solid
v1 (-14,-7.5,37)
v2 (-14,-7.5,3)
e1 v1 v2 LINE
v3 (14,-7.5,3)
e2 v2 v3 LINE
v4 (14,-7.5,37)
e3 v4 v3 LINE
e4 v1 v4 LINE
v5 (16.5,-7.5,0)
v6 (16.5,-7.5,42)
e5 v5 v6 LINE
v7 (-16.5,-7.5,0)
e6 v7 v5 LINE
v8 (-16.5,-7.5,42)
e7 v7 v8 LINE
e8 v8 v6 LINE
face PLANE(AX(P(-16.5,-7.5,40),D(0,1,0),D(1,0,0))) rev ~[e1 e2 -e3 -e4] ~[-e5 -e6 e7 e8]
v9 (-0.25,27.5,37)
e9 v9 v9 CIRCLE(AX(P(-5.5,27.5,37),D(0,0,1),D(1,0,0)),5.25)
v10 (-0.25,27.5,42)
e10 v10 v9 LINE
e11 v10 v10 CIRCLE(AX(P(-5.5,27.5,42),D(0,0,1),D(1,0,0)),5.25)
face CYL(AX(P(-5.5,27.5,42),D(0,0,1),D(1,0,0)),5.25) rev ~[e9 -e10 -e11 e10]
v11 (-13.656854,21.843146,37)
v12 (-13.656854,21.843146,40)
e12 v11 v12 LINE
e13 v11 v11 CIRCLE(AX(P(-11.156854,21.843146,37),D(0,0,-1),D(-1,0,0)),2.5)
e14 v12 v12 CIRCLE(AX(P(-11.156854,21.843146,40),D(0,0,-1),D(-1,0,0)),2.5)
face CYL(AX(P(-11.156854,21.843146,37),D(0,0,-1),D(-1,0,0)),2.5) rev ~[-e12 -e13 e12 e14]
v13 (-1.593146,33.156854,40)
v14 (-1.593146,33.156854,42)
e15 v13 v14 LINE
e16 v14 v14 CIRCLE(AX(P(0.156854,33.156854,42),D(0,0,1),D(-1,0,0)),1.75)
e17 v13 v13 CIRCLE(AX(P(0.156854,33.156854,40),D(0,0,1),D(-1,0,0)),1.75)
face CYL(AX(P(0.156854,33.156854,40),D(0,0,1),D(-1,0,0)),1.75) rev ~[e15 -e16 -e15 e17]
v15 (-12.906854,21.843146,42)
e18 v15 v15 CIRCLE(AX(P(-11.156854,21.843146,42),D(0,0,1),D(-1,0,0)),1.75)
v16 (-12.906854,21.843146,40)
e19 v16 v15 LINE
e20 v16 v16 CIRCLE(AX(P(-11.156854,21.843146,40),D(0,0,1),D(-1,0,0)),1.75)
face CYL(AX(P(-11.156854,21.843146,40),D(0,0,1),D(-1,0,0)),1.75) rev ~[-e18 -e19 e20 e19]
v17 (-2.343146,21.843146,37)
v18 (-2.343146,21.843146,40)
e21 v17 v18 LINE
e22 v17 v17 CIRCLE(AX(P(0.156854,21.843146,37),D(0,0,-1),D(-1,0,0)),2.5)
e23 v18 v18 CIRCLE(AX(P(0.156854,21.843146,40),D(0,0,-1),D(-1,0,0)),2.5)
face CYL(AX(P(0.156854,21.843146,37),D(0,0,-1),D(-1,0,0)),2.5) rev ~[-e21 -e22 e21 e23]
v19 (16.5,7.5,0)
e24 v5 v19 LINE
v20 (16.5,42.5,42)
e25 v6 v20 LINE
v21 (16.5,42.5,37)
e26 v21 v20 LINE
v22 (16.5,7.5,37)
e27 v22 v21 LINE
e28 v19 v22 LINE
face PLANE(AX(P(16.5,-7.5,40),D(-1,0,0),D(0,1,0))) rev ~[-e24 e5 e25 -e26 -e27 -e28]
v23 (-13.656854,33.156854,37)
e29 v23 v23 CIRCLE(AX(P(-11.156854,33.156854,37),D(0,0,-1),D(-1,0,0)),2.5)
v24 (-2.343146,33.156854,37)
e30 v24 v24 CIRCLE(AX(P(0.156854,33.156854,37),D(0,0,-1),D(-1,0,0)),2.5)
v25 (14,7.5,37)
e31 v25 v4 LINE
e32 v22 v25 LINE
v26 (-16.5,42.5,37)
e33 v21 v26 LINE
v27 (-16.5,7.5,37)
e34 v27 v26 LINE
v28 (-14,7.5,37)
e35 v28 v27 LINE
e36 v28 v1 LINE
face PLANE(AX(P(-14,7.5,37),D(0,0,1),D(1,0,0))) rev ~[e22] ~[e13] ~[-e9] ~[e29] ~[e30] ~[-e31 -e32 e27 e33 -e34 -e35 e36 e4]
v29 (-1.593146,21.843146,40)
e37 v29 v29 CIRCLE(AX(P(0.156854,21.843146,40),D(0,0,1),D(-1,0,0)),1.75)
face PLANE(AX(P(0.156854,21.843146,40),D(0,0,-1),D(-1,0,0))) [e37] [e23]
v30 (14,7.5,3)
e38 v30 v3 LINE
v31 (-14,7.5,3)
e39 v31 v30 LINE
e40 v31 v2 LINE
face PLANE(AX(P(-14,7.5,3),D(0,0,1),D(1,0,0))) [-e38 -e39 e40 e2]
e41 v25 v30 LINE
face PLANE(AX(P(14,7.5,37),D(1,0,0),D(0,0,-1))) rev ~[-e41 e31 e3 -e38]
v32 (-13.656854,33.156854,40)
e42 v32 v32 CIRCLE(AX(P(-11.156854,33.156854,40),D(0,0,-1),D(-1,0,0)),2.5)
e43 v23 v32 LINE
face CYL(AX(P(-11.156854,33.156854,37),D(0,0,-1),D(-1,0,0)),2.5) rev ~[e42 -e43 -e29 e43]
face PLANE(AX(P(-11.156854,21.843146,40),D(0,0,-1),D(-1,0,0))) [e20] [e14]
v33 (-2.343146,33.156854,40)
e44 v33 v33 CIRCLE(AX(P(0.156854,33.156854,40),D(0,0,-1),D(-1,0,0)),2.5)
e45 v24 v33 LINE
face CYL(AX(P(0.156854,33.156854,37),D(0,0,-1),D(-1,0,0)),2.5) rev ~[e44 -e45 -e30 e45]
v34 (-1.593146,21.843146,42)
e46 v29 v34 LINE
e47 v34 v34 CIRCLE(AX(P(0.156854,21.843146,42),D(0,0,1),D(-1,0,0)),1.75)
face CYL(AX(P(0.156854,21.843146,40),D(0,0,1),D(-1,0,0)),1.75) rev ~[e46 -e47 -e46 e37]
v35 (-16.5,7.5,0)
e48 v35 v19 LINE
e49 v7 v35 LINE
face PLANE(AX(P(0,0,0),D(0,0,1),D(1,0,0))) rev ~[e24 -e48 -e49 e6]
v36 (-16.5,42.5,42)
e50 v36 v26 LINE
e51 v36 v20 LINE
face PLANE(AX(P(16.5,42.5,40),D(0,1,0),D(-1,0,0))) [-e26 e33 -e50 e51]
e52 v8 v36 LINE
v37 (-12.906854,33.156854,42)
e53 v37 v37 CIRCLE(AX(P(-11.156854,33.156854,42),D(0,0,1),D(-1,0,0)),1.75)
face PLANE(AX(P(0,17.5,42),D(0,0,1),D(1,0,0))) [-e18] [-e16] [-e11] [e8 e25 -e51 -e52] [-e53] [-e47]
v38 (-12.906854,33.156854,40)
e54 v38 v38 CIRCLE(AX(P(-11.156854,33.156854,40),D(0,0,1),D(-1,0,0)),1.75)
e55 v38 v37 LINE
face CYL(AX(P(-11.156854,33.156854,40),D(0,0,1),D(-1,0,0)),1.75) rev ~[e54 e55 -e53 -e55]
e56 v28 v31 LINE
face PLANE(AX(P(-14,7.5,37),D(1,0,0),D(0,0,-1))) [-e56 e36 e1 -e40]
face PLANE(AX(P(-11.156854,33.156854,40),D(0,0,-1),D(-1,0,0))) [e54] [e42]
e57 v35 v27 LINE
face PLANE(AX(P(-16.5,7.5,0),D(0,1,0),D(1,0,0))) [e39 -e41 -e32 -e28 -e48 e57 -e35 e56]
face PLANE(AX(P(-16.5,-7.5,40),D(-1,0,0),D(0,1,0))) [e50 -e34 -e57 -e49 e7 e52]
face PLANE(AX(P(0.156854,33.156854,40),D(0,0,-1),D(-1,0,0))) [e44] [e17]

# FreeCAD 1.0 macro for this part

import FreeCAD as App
import Part
import Sketcher
from FreeCAD import Vector

doc = App.newDocument("Part")
body = doc.addObject("PartDesign::Body", "Body")

# Sketch on XY plane
sketch1 = doc.addObject("Sketcher::SketchObject", "Sketch")
body.addObject(sketch1)
sketch1.AttachmentSupport = (doc.XY_Plane, [""])
sketch1.MapMode = "FlatFace"
sketch1.addGeometry([
    Part.LineSegment(Vector(-16.5, 7.5, 0), Vector(-16.5, -7.5, 0)),
    Part.LineSegment(Vector(-16.5, -7.5, 0), Vector(16.5, -7.5, 0)),
    Part.LineSegment(Vector(16.5, -7.5, 0), Vector(16.5, 7.5, 0)),
    Part.LineSegment(Vector(16.5, 7.5, 0), Vector(-16.5, 7.5, 0)),
], False)
sketch1.addConstraint([
    Sketcher.Constraint("Coincident", 0, 2, 1, 1),
    Sketcher.Constraint("Coincident", 1, 2, 2, 1),
    Sketcher.Constraint("Coincident", 2, 2, 3, 1),
    Sketcher.Constraint("Coincident", 3, 2, 0, 1),
    Sketcher.Constraint("Vertical", 0),
    Sketcher.Constraint("Horizontal", 1),
    Sketcher.Constraint("Vertical", 2),
    Sketcher.Constraint("Horizontal", 3),
    Sketcher.Constraint("Symmetric", 0, 2, 2, 2, -1, 1),
    Sketcher.Constraint("DistanceX", 1, 1, 1, 2, 33.0),
    Sketcher.Constraint("DistanceY", 0, 2, 0, 1, 15.0),
])
pad1 = doc.addObject("PartDesign::Pad", "Pad")
body.addObject(pad1)
pad1.Profile = sketch1
pad1.Length = 40

# Sketch on XZ plane
sketch2 = doc.addObject("Sketcher::SketchObject", "Sketch001")
body.addObject(sketch2)
sketch2.AttachmentSupport = (doc.XZ_Plane, [""])
sketch2.MapMode = "FlatFace"
sketch2.AttachmentOffset = App.Placement(Vector(0, 0, -7.5), App.Rotation())
sketch2.addGeometry([
    Part.LineSegment(Vector(-14, 3, 0), Vector(-14, 37, 0)),
    Part.LineSegment(Vector(-14, 37, 0), Vector(14, 37, 0)),
    Part.LineSegment(Vector(14, 37, 0), Vector(14, 3, 0)),
    Part.LineSegment(Vector(14, 3, 0), Vector(-14, 3, 0)),
], False)
sketch2.addConstraint([
    Sketcher.Constraint("Coincident", 0, 2, 1, 1),
    Sketcher.Constraint("Coincident", 1, 2, 2, 1),
    Sketcher.Constraint("Coincident", 2, 2, 3, 1),
    Sketcher.Constraint("Coincident", 3, 2, 0, 1),
    Sketcher.Constraint("Vertical", 0),
    Sketcher.Constraint("Horizontal", 1),
    Sketcher.Constraint("Vertical", 2),
    Sketcher.Constraint("Horizontal", 3),
    Sketcher.Constraint("DistanceX", 1, 1, 1, 2, 28.0),
    Sketcher.Constraint("DistanceY", 0, 1, 0, 2, 34.0),
    Sketcher.Constraint("DistanceX", 0, 2, -1, 1, 14.0),
    Sketcher.Constraint("DistanceY", -1, 1, 0, 2, 37.0),
])
pocket1 = doc.addObject("PartDesign::Pocket", "Pocket")
body.addObject(pocket1)
pocket1.Profile = sketch2
pocket1.Length = 29
pocket1.Reversed = True

# Sketch on XY plane
sketch3 = doc.addObject("Sketcher::SketchObject", "Sketch002")
body.addObject(sketch3)
sketch3.AttachmentSupport = (doc.XY_Plane, [""])
sketch3.MapMode = "FlatFace"
sketch3.AttachmentOffset = App.Placement(Vector(0, 0, 40), App.Rotation())
sketch3.addGeometry([
    Part.LineSegment(Vector(-16.5, 42.5, 0), Vector(-16.5, -7.5, 0)),
    Part.LineSegment(Vector(-16.5, -7.5, 0), Vector(16.5, -7.5, 0)),
    Part.LineSegment(Vector(16.5, -7.5, 0), Vector(16.5, 42.5, 0)),
    Part.LineSegment(Vector(16.5, 42.5, 0), Vector(-16.5, 42.5, 0)),
], False)
sketch3.addConstraint([
    Sketcher.Constraint("Coincident", 0, 2, 1, 1),
    Sketcher.Constraint("Coincident", 1, 2, 2, 1),
    Sketcher.Constraint("Coincident", 2, 2, 3, 1),
    Sketcher.Constraint("Coincident", 3, 2, 0, 1),
    Sketcher.Constraint("Vertical", 0),
    Sketcher.Constraint("Horizontal", 1),
    Sketcher.Constraint("Vertical", 2),
    Sketcher.Constraint("Horizontal", 3),
    Sketcher.Constraint("DistanceX", 1, 1, 1, 2, 33.0),
    Sketcher.Constraint("DistanceY", 0, 2, 0, 1, 50.0),
    Sketcher.Constraint("DistanceX", 0, 2, -1, 1, 16.5),
    Sketcher.Constraint("DistanceY", 0, 2, -1, 1, 7.5),
])
pad2 = doc.addObject("PartDesign::Pad", "Pad001")
body.addObject(pad2)
pad2.Profile = sketch3
pad2.Length = 2

# Sketch on XY plane
sketch4 = doc.addObject("Sketcher::SketchObject", "Sketch003")
body.addObject(sketch4)
sketch4.AttachmentSupport = (doc.XY_Plane, [""])
sketch4.MapMode = "FlatFace"
sketch4.AttachmentOffset = App.Placement(Vector(0, 0, 40), App.Rotation())
sketch4.addGeometry(Part.Circle(Vector(-5.5, 27.5, 0), Vector(0, 0, 1), 4), False)
sketch4.addConstraint([
    Sketcher.Constraint("Diameter", 0, 8.0),
    Sketcher.Constraint("DistanceX", 0, 3, -1, 1, 5.5),
    Sketcher.Constraint("DistanceY", -1, 1, 0, 3, 27.5),
])
pocket2 = doc.addObject("PartDesign::Pocket", "Pocket001")
body.addObject(pocket2)
pocket2.Profile = sketch4
pocket2.Length = 16
pocket2.Reversed = True

# Sketch on XY plane
sketch5 = doc.addObject("Sketcher::SketchObject", "Sketch004")
body.addObject(sketch5)
sketch5.AttachmentSupport = (doc.XY_Plane, [""])
sketch5.MapMode = "FlatFace"
sketch5.AttachmentOffset = App.Placement(Vector(0, 0, 40), App.Rotation())
sketch5.addGeometry([
    Part.LineSegment(Vector(16.5, 42.5, 0), Vector(16.5, -7.5, 0)),
    Part.LineSegment(Vector(16.5, -7.5, 0), Vector(-16.5, -7.5, 0)),
    Part.LineSegment(Vector(-16.5, -7.5, 0), Vector(-16.5, 42.5, 0)),
    Part.LineSegment(Vector(-16.5, 42.5, 0), Vector(16.5, 42.5, 0)),
], False)
sketch5.addConstraint([
    Sketcher.Constraint("Coincident", 0, 2, 1, 1),
    Sketcher.Constraint("Coincident", 1, 2, 2, 1),
    Sketcher.Constraint("Coincident", 2, 2, 3, 1),
    Sketcher.Constraint("Coincident", 3, 2, 0, 1),
    Sketcher.Constraint("Vertical", 0),
    Sketcher.Constraint("Horizontal", 1),
    Sketcher.Constraint("Vertical", 2),
    Sketcher.Constraint("Horizontal", 3),
    Sketcher.Constraint("DistanceX", 1, 2, 1, 1, 33.0),
    Sketcher.Constraint("DistanceY", 0, 2, 0, 1, 50.0),
    Sketcher.Constraint("DistanceX", -1, 1, 0, 2, 16.5),
    Sketcher.Constraint("DistanceY", 0, 2, -1, 1, 7.5),
])
pad3 = doc.addObject("PartDesign::Pad", "Pad002")
body.addObject(pad3)
pad3.Profile = sketch5
pad3.Length = 3
pad3.Reversed = True

# Sketch on XY plane
sketch6 = doc.addObject("Sketcher::SketchObject", "Sketch005")
body.addObject(sketch6)
sketch6.AttachmentSupport = (doc.XY_Plane, [""])
sketch6.MapMode = "FlatFace"
sketch6.AttachmentOffset = App.Placement(Vector(0, 0, 40), App.Rotation())
sketch6.addGeometry(Part.Circle(Vector(-11.156854, 33.156854, 0), Vector(0, 0, 1), 1.75), False)
sketch6.addConstraint([
    Sketcher.Constraint("Diameter", 0, 3.5),
    Sketcher.Constraint("DistanceX", 0, 3, -1, 1, 11.156854),
    Sketcher.Constraint("DistanceY", -1, 1, 0, 3, 33.156854),
])
pocket3 = doc.addObject("PartDesign::Pocket", "Pocket002")
body.addObject(pocket3)
pocket3.Profile = sketch6
pocket3.Length = 29
pocket3.Midplane = True

# Sketch on XY plane
sketch7 = doc.addObject("Sketcher::SketchObject", "Sketch006")
body.addObject(sketch7)
sketch7.AttachmentSupport = (doc.XY_Plane, [""])
sketch7.MapMode = "FlatFace"
sketch7.AttachmentOffset = App.Placement(Vector(0, 0, 40), App.Rotation())
sketch7.addGeometry(Part.Circle(Vector(-11.156854, 21.843146, 0), Vector(0, 0, 1), 1.75), False)
sketch7.addConstraint([
    Sketcher.Constraint("Diameter", 0, 3.5),
    Sketcher.Constraint("DistanceX", 0, 3, -1, 1, 11.156854),
    Sketcher.Constraint("DistanceY", -1, 1, 0, 3, 21.843146),
])
pocket4 = doc.addObject("PartDesign::Pocket", "Pocket003")
body.addObject(pocket4)
pocket4.Profile = sketch7
pocket4.Length = 29
pocket4.Midplane = True

# Sketch on XY plane
sketch8 = doc.addObject("Sketcher::SketchObject", "Sketch007")
body.addObject(sketch8)
sketch8.AttachmentSupport = (doc.XY_Plane, [""])
sketch8.MapMode = "FlatFace"
sketch8.AttachmentOffset = App.Placement(Vector(0, 0, 40), App.Rotation())
sketch8.addGeometry(Part.Circle(Vector(0.156854, 33.156854, 0), Vector(0, 0, 1), 1.75), False)
sketch8.addConstraint([
    Sketcher.Constraint("Diameter", 0, 3.5),
    Sketcher.Constraint("DistanceX", -1, 1, 0, 3, 0.156854),
    Sketcher.Constraint("DistanceY", -1, 1, 0, 3, 33.156854),
])
pocket5 = doc.addObject("PartDesign::Pocket", "Pocket004")
body.addObject(pocket5)
pocket5.Profile = sketch8
pocket5.Length = 17
pocket5.Midplane = True

# Sketch on XY plane
sketch9 = doc.addObject("Sketcher::SketchObject", "Sketch008")
body.addObject(sketch9)
sketch9.AttachmentSupport = (doc.XY_Plane, [""])
sketch9.MapMode = "FlatFace"
sketch9.AttachmentOffset = App.Placement(Vector(0, 0, 42), App.Rotation())
sketch9.addGeometry(Part.Circle(Vector(-5.5, 27.5, 0), Vector(0, 0, 1), 5.25), False)
sketch9.addConstraint([
    Sketcher.Constraint("Diameter", 0, 10.5),
    Sketcher.Constraint("DistanceX", 0, 3, -1, 1, 5.5),
    Sketcher.Constraint("DistanceY", -1, 1, 0, 3, 27.5),
])
pocket6 = doc.addObject("PartDesign::Pocket", "Pocket005")
body.addObject(pocket6)
pocket6.Profile = sketch9
pocket6.Length = 36

# Sketch on XY plane
sketch10 = doc.addObject("Sketcher::SketchObject", "Sketch009")
body.addObject(sketch10)
sketch10.AttachmentSupport = (doc.XY_Plane, [""])
sketch10.MapMode = "FlatFace"
sketch10.AttachmentOffset = App.Placement(Vector(0, 0, 40), App.Rotation())
sketch10.addGeometry(Part.Circle(Vector(0.156854, 21.843146, 0), Vector(0, 0, 1), 1.75), False)
sketch10.addConstraint([
    Sketcher.Constraint("Diameter", 0, 3.5),
    Sketcher.Constraint("DistanceX", -1, 1, 0, 3, 0.156854),
    Sketcher.Constraint("DistanceY", -1, 1, 0, 3, 21.843146),
])
pocket7 = doc.addObject("PartDesign::Pocket", "Pocket006")
body.addObject(pocket7)
pocket7.Profile = sketch10
pocket7.Length = 11
pocket7.Midplane = True

# Sketch on XY plane
sketch11 = doc.addObject("Sketcher::SketchObject", "Sketch010")
body.addObject(sketch11)
sketch11.AttachmentSupport = (doc.XY_Plane, [""])
sketch11.MapMode = "FlatFace"
sketch11.AttachmentOffset = App.Placement(Vector(0, 0, 37), App.Rotation())
sketch11.addGeometry(Part.Circle(Vector(0.156854, 33.156854, 0), Vector(0, 0, 1), 2.5), False)
sketch11.addConstraint([
    Sketcher.Constraint("Diameter", 0, 5.0),
    Sketcher.Constraint("DistanceX", -1, 1, 0, 3, 0.156854),
    Sketcher.Constraint("DistanceY", -1, 1, 0, 3, 33.156854),
])
pocket8 = doc.addObject("PartDesign::Pocket", "Pocket007")
body.addObject(pocket8)
pocket8.Profile = sketch11
pocket8.Length = 3
pocket8.Reversed = True

# Sketch on XY plane
sketch12 = doc.addObject("Sketcher::SketchObject", "Sketch011")
body.addObject(sketch12)
sketch12.AttachmentSupport = (doc.XY_Plane, [""])
sketch12.MapMode = "FlatFace"
sketch12.AttachmentOffset = App.Placement(Vector(0, 0, 37), App.Rotation())
sketch12.addGeometry(Part.Circle(Vector(-11.156854, 33.156854, 0), Vector(0, 0, 1), 2.5), False)
sketch12.addConstraint([
    Sketcher.Constraint("Diameter", 0, 5.0),
    Sketcher.Constraint("DistanceX", 0, 3, -1, 1, 11.156854),
    Sketcher.Constraint("DistanceY", -1, 1, 0, 3, 33.156854),
])
pocket9 = doc.addObject("PartDesign::Pocket", "Pocket008")
body.addObject(pocket9)
pocket9.Profile = sketch12
pocket9.Length = 3
pocket9.Reversed = True

# Sketch on XY plane
sketch13 = doc.addObject("Sketcher::SketchObject", "Sketch012")
body.addObject(sketch13)
sketch13.AttachmentSupport = (doc.XY_Plane, [""])
sketch13.MapMode = "FlatFace"
sketch13.AttachmentOffset = App.Placement(Vector(0, 0, 37), App.Rotation())
sketch13.addGeometry(Part.Circle(Vector(-11.156854, 21.843146, 0), Vector(0, 0, 1), 2.5), False)
sketch13.addConstraint([
    Sketcher.Constraint("Diameter", 0, 5.0),
    Sketcher.Constraint("DistanceX", 0, 3, -1, 1, 11.156854),
    Sketcher.Constraint("DistanceY", -1, 1, 0, 3, 21.843146),
])
pocket10 = doc.addObject("PartDesign::Pocket", "Pocket009")
body.addObject(pocket10)
pocket10.Profile = sketch13
pocket10.Length = 3
pocket10.Reversed = True

# Sketch on XY plane
sketch14 = doc.addObject("Sketcher::SketchObject", "Sketch013")
body.addObject(sketch14)
sketch14.AttachmentSupport = (doc.XY_Plane, [""])
sketch14.MapMode = "FlatFace"
sketch14.AttachmentOffset = App.Placement(Vector(0, 0, 37), App.Rotation())
sketch14.addGeometry(Part.Circle(Vector(0.156854, 21.843146, 0), Vector(0, 0, 1), 2.5), False)
sketch14.addConstraint([
    Sketcher.Constraint("Diameter", 0, 5.0),
    Sketcher.Constraint("DistanceX", -1, 1, 0, 3, 0.156854),
    Sketcher.Constraint("DistanceY", -1, 1, 0, 3, 21.843146),
])
pocket11 = doc.addObject("PartDesign::Pocket", "Pocket010")
body.addObject(pocket11)
pocket11.Profile = sketch14
pocket11.Length = 3
pocket11.Reversed = True

doc.recompute()
